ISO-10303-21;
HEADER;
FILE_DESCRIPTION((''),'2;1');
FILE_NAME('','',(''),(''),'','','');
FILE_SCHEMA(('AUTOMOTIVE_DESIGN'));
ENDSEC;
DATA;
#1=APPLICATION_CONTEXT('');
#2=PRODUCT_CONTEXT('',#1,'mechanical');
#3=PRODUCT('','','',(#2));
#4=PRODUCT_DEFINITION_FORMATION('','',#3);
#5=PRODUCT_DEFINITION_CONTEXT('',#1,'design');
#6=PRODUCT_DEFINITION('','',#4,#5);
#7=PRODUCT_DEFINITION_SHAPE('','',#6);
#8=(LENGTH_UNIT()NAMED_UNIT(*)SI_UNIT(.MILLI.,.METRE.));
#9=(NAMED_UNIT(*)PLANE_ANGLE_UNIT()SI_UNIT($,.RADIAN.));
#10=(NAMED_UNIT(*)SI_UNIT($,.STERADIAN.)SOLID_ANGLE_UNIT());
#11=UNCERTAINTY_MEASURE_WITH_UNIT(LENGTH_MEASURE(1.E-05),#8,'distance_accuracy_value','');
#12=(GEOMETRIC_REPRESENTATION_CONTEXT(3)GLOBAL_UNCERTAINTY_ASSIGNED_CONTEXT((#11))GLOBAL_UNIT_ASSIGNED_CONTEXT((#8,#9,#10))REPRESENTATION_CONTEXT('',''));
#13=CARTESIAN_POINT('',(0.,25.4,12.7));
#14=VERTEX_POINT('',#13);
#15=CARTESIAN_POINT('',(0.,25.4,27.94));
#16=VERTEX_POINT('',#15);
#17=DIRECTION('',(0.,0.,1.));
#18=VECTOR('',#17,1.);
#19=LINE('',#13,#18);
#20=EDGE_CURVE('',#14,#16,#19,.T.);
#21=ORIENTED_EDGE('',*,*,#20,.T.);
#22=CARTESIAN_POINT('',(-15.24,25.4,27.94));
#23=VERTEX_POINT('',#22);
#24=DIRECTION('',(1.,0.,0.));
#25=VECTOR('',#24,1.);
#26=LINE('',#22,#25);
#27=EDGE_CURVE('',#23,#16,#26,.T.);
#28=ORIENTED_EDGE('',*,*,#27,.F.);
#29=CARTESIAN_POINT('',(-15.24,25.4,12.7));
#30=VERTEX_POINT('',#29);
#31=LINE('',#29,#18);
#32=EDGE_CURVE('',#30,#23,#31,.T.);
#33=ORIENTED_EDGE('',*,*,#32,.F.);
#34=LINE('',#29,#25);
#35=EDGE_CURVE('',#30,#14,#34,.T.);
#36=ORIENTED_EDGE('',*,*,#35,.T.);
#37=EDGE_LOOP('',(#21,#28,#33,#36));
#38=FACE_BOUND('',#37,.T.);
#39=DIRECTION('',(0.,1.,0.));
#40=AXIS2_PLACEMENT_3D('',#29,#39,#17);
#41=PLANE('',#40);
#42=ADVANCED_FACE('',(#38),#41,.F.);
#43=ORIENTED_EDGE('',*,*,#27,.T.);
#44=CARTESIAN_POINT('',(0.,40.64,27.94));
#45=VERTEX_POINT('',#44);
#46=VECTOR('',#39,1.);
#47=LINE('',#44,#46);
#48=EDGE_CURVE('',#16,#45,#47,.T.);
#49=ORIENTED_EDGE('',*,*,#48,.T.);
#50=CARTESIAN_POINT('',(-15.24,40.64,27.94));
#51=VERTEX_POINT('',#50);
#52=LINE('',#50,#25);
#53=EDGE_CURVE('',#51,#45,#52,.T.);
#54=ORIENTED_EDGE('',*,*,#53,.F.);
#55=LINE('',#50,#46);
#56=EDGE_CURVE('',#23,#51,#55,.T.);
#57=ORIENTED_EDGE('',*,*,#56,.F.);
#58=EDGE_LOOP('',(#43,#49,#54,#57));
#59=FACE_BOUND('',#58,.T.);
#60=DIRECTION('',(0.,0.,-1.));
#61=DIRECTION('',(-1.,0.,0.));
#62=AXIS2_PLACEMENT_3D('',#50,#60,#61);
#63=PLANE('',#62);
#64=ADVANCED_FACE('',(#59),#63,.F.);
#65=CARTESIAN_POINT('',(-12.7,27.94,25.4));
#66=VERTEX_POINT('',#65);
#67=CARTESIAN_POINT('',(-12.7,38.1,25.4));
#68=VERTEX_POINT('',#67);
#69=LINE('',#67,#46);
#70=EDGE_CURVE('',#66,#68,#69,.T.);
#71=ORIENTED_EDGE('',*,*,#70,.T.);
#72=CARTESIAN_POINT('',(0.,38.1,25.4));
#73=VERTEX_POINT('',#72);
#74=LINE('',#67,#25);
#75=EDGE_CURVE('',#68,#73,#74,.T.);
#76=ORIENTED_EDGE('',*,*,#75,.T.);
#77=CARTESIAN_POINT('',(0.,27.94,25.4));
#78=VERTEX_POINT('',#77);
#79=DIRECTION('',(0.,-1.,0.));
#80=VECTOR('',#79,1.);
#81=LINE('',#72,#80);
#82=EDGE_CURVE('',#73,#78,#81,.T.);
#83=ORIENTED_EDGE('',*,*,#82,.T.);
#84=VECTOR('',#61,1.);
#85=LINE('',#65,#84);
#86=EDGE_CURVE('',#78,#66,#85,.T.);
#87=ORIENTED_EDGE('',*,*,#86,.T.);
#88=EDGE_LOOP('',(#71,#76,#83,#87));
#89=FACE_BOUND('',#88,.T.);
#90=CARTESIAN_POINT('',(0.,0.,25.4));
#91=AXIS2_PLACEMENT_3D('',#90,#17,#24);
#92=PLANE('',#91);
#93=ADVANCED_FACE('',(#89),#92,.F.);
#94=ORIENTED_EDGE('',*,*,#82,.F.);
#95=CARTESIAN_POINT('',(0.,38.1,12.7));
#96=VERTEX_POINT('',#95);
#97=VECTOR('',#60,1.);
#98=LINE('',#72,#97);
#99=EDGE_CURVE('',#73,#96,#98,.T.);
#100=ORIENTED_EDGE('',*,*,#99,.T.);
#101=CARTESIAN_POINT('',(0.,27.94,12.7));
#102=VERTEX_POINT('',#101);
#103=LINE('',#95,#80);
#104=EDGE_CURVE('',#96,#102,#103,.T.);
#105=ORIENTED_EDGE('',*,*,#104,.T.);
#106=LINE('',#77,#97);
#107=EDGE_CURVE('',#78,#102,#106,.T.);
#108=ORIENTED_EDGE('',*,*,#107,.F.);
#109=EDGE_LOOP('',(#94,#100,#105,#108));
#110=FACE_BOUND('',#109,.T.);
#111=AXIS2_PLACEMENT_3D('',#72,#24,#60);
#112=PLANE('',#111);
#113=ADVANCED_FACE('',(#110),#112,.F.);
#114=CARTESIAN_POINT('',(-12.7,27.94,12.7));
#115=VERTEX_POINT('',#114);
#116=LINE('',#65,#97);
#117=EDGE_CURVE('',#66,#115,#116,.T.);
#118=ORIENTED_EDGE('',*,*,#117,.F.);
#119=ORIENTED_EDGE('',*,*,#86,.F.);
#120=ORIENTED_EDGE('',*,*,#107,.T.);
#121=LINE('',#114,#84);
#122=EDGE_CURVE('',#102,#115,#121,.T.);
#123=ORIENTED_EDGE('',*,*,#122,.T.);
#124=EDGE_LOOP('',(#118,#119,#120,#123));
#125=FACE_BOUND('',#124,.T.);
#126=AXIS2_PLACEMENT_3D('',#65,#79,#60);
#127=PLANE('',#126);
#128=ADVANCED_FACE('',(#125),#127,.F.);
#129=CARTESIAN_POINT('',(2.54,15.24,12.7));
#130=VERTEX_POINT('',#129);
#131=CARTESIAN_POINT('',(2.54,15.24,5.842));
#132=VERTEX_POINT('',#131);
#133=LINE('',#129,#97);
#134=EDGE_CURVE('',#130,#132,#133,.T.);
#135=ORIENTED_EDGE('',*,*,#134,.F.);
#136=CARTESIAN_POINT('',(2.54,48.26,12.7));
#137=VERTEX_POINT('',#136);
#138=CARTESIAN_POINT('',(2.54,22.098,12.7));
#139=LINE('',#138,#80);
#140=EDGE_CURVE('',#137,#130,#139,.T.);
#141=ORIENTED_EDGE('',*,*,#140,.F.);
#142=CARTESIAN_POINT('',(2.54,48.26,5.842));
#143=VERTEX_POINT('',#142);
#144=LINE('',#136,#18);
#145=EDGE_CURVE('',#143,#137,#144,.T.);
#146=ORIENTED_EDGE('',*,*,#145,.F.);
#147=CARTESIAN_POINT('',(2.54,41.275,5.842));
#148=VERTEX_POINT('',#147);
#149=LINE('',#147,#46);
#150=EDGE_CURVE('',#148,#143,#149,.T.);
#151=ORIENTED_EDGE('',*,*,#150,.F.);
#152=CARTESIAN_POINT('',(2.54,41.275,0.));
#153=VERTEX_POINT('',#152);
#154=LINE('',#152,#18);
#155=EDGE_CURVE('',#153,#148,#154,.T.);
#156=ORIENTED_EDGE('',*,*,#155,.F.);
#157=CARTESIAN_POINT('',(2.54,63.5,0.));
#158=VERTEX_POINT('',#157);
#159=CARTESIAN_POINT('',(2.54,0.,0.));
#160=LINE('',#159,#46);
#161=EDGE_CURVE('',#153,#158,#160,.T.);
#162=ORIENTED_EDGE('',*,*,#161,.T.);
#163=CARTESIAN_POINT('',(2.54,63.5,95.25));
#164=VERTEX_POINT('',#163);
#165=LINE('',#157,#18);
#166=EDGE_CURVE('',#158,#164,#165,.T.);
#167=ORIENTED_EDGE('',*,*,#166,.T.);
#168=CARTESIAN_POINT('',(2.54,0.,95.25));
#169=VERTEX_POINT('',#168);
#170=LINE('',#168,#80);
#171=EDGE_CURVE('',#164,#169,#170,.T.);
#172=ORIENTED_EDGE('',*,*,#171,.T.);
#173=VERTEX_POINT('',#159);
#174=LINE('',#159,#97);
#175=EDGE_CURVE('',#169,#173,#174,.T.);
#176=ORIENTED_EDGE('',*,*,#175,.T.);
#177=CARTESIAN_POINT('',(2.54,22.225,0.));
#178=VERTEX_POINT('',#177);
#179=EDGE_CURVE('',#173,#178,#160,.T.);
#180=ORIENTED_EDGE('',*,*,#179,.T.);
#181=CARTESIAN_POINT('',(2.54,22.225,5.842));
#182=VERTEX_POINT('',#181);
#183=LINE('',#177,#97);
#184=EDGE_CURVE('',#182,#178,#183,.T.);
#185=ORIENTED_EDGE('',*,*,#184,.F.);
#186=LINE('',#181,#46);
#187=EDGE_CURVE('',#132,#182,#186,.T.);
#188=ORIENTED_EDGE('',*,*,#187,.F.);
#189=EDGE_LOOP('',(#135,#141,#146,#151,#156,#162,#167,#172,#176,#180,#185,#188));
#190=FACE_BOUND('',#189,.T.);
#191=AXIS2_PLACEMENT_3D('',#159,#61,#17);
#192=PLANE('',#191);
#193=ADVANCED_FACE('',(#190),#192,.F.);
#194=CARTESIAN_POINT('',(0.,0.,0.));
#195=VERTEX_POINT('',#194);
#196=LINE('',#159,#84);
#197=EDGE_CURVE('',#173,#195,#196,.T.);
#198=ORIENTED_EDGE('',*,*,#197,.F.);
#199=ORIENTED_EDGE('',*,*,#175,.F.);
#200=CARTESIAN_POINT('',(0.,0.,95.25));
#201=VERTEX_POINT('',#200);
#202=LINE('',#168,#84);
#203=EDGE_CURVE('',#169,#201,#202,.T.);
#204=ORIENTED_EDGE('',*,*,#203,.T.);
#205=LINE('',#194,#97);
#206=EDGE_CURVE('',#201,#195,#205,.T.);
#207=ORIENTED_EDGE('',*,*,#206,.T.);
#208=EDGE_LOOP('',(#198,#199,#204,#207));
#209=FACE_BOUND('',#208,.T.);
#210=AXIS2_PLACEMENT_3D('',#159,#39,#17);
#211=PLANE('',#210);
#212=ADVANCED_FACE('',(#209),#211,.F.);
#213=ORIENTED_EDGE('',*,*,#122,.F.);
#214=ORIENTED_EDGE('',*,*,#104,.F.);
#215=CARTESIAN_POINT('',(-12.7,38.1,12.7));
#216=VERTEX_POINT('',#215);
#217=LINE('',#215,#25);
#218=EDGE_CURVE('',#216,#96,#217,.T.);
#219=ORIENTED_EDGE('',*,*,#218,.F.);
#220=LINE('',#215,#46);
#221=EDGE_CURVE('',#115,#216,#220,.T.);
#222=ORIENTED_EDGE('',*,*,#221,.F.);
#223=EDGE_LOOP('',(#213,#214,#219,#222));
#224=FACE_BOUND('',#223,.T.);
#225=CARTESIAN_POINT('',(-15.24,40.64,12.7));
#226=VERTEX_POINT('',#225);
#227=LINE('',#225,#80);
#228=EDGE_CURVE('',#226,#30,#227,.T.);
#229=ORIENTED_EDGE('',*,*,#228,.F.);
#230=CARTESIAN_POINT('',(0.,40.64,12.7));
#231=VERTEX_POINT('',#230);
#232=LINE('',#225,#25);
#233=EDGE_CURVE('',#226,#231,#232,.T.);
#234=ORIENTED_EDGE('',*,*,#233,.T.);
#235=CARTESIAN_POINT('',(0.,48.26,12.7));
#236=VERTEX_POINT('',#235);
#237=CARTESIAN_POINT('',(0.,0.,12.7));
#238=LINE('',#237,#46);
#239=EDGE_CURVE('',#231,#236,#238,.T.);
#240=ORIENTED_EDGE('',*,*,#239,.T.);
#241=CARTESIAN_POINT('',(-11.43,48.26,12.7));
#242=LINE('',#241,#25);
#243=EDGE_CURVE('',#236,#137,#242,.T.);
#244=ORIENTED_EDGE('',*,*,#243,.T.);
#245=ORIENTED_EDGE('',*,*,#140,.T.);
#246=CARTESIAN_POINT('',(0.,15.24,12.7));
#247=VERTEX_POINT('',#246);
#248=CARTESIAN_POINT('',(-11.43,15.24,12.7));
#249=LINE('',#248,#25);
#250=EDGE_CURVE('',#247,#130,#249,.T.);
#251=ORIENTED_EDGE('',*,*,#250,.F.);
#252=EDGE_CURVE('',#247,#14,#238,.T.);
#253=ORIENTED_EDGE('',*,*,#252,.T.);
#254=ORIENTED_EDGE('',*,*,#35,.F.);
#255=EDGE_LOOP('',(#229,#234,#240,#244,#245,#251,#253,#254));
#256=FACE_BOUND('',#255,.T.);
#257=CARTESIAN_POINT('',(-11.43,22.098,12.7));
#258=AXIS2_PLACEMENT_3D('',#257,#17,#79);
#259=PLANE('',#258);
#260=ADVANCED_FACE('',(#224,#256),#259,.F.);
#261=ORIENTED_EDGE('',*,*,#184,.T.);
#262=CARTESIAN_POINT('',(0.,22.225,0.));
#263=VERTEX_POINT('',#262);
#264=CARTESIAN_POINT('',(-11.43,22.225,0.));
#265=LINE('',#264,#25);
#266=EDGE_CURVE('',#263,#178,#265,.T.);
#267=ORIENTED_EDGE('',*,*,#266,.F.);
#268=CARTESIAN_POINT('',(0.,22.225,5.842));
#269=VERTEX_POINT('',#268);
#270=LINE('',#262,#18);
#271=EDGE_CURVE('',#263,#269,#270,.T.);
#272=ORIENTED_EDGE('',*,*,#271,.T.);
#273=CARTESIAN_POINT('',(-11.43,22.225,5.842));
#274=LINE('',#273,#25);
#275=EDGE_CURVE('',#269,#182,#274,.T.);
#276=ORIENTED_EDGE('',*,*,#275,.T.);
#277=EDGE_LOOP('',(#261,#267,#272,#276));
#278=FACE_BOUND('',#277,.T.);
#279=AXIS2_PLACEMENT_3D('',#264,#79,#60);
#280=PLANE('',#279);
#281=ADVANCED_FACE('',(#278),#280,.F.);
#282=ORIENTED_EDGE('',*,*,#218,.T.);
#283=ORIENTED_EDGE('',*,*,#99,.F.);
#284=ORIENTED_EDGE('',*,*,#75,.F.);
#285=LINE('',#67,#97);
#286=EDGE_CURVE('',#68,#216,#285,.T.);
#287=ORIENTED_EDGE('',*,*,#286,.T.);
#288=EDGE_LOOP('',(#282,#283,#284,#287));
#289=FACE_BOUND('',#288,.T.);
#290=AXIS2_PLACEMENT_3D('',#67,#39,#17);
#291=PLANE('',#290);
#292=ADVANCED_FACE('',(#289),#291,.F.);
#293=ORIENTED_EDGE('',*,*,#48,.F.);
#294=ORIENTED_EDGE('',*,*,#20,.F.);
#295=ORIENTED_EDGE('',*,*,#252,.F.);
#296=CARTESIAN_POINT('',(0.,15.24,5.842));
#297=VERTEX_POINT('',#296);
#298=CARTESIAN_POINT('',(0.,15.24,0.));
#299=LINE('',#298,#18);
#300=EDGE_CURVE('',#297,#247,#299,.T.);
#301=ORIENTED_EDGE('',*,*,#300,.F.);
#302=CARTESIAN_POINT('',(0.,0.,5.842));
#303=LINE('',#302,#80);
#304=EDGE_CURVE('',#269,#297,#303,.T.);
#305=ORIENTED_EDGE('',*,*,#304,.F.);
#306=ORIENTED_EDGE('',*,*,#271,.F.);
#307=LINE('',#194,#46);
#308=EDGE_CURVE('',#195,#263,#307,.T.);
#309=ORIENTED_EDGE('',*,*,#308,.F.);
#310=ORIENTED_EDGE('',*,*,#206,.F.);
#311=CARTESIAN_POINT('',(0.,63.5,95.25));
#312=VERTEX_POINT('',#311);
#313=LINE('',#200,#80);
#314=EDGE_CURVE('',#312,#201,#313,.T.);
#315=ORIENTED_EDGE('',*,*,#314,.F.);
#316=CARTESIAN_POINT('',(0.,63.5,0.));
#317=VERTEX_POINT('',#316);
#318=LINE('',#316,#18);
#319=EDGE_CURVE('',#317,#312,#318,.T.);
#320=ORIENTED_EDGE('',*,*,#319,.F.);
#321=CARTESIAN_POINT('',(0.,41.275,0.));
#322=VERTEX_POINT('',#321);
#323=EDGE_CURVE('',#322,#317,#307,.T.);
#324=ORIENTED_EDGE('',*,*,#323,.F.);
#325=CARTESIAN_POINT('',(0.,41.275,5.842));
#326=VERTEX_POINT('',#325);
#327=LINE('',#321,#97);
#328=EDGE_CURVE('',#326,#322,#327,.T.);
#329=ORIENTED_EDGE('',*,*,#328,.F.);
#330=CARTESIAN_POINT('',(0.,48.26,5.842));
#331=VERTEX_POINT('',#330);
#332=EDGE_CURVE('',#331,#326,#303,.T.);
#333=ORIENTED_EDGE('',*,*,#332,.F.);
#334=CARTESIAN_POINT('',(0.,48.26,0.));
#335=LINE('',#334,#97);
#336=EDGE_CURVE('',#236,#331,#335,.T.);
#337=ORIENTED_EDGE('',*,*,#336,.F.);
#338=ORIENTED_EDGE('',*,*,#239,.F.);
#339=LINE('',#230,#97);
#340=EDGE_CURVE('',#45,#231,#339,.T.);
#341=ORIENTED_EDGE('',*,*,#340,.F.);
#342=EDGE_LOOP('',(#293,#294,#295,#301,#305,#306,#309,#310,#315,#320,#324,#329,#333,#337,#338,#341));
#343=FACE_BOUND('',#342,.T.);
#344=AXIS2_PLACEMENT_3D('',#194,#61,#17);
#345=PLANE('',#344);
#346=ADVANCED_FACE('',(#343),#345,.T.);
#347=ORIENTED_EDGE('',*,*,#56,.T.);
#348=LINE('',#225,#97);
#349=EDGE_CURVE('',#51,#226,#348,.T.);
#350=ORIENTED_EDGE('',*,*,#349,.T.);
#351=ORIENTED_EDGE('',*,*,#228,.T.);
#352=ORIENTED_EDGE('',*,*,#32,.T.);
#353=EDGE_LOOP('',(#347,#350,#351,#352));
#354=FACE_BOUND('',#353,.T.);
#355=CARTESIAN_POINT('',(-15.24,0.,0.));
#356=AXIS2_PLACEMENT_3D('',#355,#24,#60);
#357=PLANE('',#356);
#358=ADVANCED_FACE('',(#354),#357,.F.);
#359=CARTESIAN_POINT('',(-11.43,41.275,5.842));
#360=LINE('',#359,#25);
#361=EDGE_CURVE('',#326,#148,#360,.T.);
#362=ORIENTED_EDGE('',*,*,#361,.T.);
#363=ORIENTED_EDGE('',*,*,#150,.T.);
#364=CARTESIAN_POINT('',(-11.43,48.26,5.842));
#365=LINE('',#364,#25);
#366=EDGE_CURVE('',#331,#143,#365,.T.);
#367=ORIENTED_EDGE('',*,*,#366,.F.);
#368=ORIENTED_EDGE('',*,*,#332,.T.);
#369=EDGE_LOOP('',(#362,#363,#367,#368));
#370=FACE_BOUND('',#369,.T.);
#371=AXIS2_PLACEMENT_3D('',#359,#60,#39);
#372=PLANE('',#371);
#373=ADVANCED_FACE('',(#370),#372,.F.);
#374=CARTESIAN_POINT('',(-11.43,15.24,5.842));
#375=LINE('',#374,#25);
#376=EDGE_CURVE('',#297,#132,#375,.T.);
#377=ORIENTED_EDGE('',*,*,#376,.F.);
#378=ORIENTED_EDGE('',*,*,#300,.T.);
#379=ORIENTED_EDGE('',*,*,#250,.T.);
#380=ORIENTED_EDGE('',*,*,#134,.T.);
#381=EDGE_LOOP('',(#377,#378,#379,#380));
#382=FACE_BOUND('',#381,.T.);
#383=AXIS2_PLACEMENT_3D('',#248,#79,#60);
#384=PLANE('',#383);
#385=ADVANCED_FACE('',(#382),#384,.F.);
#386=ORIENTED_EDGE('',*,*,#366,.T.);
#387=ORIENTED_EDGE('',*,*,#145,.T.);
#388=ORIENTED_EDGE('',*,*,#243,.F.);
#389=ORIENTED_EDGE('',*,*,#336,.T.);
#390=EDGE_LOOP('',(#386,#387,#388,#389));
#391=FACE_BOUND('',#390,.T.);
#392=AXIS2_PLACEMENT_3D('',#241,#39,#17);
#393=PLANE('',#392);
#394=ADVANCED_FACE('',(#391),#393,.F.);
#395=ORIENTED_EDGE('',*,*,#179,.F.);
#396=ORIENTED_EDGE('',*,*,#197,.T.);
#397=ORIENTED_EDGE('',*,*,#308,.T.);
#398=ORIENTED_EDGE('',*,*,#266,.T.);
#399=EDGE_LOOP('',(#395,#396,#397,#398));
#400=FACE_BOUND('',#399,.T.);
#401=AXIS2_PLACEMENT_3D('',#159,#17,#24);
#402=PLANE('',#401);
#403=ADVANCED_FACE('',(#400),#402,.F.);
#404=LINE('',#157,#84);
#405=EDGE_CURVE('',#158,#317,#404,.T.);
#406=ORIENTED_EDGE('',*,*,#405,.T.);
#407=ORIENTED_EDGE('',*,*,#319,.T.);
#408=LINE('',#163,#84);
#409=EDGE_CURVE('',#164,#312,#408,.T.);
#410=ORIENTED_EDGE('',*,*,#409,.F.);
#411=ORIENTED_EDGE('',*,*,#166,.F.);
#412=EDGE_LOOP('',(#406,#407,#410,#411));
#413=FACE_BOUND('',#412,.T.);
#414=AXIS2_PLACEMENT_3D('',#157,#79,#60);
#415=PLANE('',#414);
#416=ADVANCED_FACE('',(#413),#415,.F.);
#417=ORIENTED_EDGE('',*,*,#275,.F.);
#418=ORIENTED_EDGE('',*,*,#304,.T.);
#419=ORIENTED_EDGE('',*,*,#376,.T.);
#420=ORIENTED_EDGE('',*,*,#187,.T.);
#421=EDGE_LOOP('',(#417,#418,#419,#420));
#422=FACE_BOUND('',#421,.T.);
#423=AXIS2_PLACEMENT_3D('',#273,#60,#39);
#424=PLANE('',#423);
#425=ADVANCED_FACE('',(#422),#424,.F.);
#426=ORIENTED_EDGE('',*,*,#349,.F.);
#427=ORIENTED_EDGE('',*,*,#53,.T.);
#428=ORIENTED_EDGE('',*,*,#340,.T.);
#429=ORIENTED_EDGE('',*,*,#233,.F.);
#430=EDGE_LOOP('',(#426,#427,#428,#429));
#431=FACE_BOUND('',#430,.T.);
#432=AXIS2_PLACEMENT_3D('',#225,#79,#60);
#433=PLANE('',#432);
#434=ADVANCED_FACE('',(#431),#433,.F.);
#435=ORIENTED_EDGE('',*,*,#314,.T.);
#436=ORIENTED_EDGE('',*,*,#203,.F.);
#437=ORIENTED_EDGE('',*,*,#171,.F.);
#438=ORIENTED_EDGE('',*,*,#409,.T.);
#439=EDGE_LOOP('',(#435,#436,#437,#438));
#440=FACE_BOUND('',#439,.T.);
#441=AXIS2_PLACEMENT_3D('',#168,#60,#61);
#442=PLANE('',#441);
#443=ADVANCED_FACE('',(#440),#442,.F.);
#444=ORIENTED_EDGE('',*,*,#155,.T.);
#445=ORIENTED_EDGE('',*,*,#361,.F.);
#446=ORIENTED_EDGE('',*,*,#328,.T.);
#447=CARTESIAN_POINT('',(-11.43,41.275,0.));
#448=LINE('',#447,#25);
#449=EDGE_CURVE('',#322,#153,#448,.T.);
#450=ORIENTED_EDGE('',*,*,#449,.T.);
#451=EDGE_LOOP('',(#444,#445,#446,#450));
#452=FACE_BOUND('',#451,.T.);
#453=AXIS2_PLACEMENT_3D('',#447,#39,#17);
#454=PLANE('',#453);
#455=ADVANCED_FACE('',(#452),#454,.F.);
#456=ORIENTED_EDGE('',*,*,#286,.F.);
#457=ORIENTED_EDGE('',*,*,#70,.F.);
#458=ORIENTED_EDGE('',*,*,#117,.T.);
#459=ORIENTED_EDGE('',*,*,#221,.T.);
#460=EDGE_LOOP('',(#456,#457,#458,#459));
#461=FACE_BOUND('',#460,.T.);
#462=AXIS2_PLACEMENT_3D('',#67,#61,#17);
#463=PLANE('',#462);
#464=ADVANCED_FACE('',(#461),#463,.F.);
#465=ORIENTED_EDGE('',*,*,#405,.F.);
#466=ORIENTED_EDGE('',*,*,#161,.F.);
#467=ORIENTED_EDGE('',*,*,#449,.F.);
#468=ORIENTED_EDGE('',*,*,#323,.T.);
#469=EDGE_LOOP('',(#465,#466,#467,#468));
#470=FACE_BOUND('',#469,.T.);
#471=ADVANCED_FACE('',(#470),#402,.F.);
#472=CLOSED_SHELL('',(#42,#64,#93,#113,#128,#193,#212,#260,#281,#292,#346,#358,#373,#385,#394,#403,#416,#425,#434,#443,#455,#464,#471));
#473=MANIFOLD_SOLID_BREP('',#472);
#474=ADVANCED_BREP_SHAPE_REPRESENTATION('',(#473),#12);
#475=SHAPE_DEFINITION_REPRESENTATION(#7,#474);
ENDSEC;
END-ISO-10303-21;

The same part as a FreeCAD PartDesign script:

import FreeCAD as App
import Part
import Sketcher
Q = App.Units.Quantity


def add_polygon(sketch, points):
    """Adds a closed chain of lines whose ends are joined by coincident constraints."""
    first, n = sketch.GeometryCount, len(points)
    for a, b in zip(points, points[1:] + points[:1]):
        sketch.addGeometry(Part.LineSegment(App.Vector(*a, 0), App.Vector(*b, 0)), False)
    for i in range(n):
        sketch.addConstraint(Sketcher.Constraint("Coincident", first + i, 2, first + (i + 1) % n, 1))

doc = App.newDocument("Part")
params = doc.addObject("Spreadsheet::Sheet", "Params")
for row, (alias, value) in enumerate([
    ("sketch1_width", "2.5 in"),
    ("sketch1_height", "3.75 in"),
    ("pad1_length", "0.1 in"),
    ("sketch2_width", "1.3 in"),
    ("sketch2_width2", "0.75 in"),
    ("sketch2_height", "0.23 in"),
    ("sketch2_height2", "0.27 in"),
    ("pocket1_length", "0.55 in"),
    ("sketch3_width", "0.6 in"),
    ("pad2_length", "0.6 in"),
    ("sketch4_width", "0.5 in"),
    ("sketch4_height", "0.4 in"),
    ("pocket2_length", "0.5 in"),
], start=1):
    params.set(f"A{row}", alias)
    params.set(f"B{row}", "=" + value)
    params.setAlias(f"B{row}", alias)

body = doc.addObject("PartDesign::Body", "Body")

sketch1 = body.newObject("Sketcher::SketchObject", "Sketch")
sketch1.AttachmentSupport = (doc.getObject("YZ_Plane"), [""])
sketch1.MapMode = "FlatFace"
add_polygon(sketch1, [(0, 95), (0, 0), (64, 0), (64, 95)])
sketch1.addConstraint([
    Sketcher.Constraint("Vertical", 0),
    Sketcher.Constraint("Horizontal", 1),
    Sketcher.Constraint("Vertical", 2),
    Sketcher.Constraint("Horizontal", 3),
    Sketcher.Constraint("Coincident", 0, 2, -1, 1),
    Sketcher.Constraint("DistanceX", 1, 1, 1, 2, Q("2.5 in")),
    Sketcher.Constraint("DistanceY", 0, 2, 0, 1, Q("3.75 in")),
])
sketch1.setExpression("Constraints[9]", "Params.sketch1_width")
sketch1.setExpression("Constraints[10]", "Params.sketch1_height")
pad1 = body.newObject("PartDesign::Pad", "Pad")
pad1.Profile = sketch1
pad1.setExpression("Length", "Params.pad1_length")

sketch2 = body.newObject("Sketcher::SketchObject", "Sketch001")
sketch2.AttachmentSupport = (doc.getObject("YZ_Plane"), [""])
sketch2.MapMode = "FlatFace"
sketch2.AttachmentOffset = App.Placement(App.Vector(0, 0, 0.1 * 25.4), App.Rotation())
add_polygon(sketch2, [(22, 0), (41, 0), (41, 6), (48, 6), (48, 13), (15, 13), (15, 6), (22, 6)])
sketch2.addConstraint([
    Sketcher.Constraint("Horizontal", 0),
    Sketcher.Constraint("Vertical", 1),
    Sketcher.Constraint("Horizontal", 2),
    Sketcher.Constraint("Vertical", 3),
    Sketcher.Constraint("Horizontal", 4),
    Sketcher.Constraint("Vertical", 5),
    Sketcher.Constraint("Horizontal", 6),
    Sketcher.Constraint("Vertical", 7),
    Sketcher.Constraint("PointOnObject", 0, 2, -1),
    Sketcher.Constraint("Horizontal", 2, 2, 5, 2),
    Sketcher.Constraint("Equal", 2, 6),
    Sketcher.Constraint("DistanceX", 4, 2, 4, 1, Q("1.3 in")),
    Sketcher.Constraint("DistanceX", 0, 1, 0, 2, Q("0.75 in")),
    Sketcher.Constraint("DistanceY", 1, 1, 1, 2, Q("0.23 in")),
    Sketcher.Constraint("DistanceY", 3, 1, 3, 2, Q("0.27 in")),
    Sketcher.Constraint("DistanceX", -1, 1, 2, 2, Q("1.9 in")),
])
sketch2.setExpression("Constraints[19]", "Params.sketch2_width")
sketch2.setExpression("Constraints[20]", "Params.sketch2_width2")
sketch2.setExpression("Constraints[21]", "Params.sketch2_height")
sketch2.setExpression("Constraints[22]", "Params.sketch2_height2")
pocket1 = body.newObject("PartDesign::Pocket", "Pocket")
pocket1.Profile = sketch2
pocket1.setExpression("Length", "Params.pocket1_length")

sketch3 = body.newObject("Sketcher::SketchObject", "Sketch002")
sketch3.AttachmentSupport = (doc.getObject("YZ_Plane"), [""])
sketch3.MapMode = "FlatFace"
add_polygon(sketch3, [(41, 28), (41, 13), (25, 13), (25, 28)])
sketch3.addConstraint([
    Sketcher.Constraint("Vertical", 0),
    Sketcher.Constraint("Horizontal", 1),
    Sketcher.Constraint("Vertical", 2),
    Sketcher.Constraint("Horizontal", 3),
    Sketcher.Constraint("Equal", 3, 0),
    Sketcher.Constraint("DistanceX", 1, 2, 1, 1, Q("0.6 in")),
    Sketcher.Constraint("DistanceX", -1, 1, 1, 2, Q("1 in")),
    Sketcher.Constraint("DistanceY", -1, 1, 0, 2, Q("0.5 in")),
])
sketch3.setExpression("Constraints[9]", "Params.sketch3_width")
pad2 = body.newObject("PartDesign::Pad", "Pad001")
pad2.Profile = sketch3
pad2.setExpression("Length", "Params.pad2_length")
pad2.Reversed = True

sketch4 = body.newObject("Sketcher::SketchObject", "Sketch003")
sketch4.AttachmentSupport = (doc.getObject("XY_Plane"), [""])
sketch4.MapMode = "FlatFace"
sketch4.AttachmentOffset = App.Placement(App.Vector(0, 0, 0.5 * 25.4), App.Rotation())
add_polygon(sketch4, [(-13, 28), (-13, 38), (0, 38), (0, 28)])
sketch4.addConstraint([
    Sketcher.Constraint("Vertical", 0),
    Sketcher.Constraint("Horizontal", 1),
    Sketcher.Constraint("Vertical", 2),
    Sketcher.Constraint("Horizontal", 3),
    Sketcher.Constraint("PointOnObject", 1, 2, -2),
    Sketcher.Constraint("DistanceX", 1, 1, 1, 2, Q("0.5 in")),
    Sketcher.Constraint("DistanceY", 0, 1, 0, 2, Q("0.4 in")),
    Sketcher.Constraint("DistanceY", -1, 1, 0, 2, Q("1.5 in")),
])
sketch4.setExpression("Constraints[9]", "Params.sketch4_width")
sketch4.setExpression("Constraints[10]", "Params.sketch4_height")
pocket2 = body.newObject("PartDesign::Pocket", "Pocket001")
pocket2.Profile = sketch4
pocket2.setExpression("Length", "Params.pocket2_length")
pocket2.Reversed = True

doc.recompute()
